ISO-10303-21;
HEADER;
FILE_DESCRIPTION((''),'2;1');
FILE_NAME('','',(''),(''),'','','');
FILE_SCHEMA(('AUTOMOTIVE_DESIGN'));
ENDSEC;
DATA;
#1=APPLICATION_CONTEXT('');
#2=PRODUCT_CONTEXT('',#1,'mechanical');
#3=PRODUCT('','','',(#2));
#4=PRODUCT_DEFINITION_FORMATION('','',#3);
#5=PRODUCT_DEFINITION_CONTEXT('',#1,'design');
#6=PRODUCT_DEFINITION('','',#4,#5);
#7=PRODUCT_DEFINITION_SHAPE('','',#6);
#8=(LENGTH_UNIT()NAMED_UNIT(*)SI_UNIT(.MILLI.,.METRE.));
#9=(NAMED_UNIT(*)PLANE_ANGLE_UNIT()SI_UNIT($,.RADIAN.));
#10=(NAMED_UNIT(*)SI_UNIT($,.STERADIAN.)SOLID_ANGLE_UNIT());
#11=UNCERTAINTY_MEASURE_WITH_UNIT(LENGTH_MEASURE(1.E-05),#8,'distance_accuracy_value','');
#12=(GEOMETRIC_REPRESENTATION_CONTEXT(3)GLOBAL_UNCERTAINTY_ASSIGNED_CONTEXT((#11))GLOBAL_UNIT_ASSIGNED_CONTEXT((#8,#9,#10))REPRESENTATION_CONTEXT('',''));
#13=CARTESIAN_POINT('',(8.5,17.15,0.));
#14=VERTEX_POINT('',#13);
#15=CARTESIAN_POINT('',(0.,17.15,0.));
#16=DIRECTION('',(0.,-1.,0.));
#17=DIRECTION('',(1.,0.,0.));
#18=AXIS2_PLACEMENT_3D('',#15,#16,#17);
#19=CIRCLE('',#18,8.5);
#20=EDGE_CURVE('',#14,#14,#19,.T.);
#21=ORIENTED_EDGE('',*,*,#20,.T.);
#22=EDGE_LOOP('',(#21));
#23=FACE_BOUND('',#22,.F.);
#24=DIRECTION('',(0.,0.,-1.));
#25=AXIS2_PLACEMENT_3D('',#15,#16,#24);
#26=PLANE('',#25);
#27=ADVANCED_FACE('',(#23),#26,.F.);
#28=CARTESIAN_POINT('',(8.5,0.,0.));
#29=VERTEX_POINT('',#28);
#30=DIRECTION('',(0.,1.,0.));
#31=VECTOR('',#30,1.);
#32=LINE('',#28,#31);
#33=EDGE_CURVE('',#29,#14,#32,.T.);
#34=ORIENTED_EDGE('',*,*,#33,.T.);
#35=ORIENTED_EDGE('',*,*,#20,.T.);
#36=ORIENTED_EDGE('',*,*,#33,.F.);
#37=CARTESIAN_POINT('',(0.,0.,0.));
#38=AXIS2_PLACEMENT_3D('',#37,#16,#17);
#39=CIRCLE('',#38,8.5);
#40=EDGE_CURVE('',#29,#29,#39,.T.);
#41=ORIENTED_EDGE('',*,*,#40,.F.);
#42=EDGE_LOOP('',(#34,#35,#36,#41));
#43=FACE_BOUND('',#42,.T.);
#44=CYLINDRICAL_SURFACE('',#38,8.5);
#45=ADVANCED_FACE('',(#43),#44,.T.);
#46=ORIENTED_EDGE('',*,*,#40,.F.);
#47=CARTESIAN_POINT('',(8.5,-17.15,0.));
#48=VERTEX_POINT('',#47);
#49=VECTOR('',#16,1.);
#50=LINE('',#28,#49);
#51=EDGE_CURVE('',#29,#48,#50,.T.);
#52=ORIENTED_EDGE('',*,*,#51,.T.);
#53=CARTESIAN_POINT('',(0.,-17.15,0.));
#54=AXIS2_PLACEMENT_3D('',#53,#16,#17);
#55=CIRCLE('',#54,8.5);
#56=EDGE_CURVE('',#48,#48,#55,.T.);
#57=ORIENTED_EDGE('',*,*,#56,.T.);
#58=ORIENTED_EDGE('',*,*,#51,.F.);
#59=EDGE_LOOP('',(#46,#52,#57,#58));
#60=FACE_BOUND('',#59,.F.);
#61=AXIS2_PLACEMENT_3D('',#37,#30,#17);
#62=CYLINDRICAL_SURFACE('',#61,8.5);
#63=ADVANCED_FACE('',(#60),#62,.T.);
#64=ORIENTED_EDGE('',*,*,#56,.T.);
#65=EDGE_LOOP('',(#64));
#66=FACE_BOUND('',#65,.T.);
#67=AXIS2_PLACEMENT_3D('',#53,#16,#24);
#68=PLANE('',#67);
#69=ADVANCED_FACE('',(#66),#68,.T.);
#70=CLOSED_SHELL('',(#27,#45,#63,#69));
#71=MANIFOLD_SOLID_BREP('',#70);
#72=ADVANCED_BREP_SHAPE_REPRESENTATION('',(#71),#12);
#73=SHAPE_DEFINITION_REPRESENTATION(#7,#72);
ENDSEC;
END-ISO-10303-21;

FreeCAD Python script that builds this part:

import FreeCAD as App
import Part
import Sketcher

V = App.Vector
Q = App.Units.Quantity

doc = App.newDocument("Part")
body = doc.addObject("PartDesign::Body", "Body")

# Sketch on XZ plane
sketch1 = body.newObject("Sketcher::SketchObject", "Sketch")
sketch1.AttachmentSupport = (doc.getObject("XZ_Plane"), [""])
sketch1.MapMode = "FlatFace"
sketch1.addGeometry(Part.Circle(V(0, 0, 0), V(0, 0, 1), 8), False)
sketch1.addConstraint(Sketcher.Constraint("Coincident", 0, 3, -1, 1))
sketch1.addConstraint(Sketcher.Constraint("Diameter", 0, Q("17 mm")))
pad1 = body.newObject("PartDesign::Pad", "Pad")
pad1.Profile = sketch1
pad1.Length = 34.3
pad1.Midplane = True

doc.recompute()
